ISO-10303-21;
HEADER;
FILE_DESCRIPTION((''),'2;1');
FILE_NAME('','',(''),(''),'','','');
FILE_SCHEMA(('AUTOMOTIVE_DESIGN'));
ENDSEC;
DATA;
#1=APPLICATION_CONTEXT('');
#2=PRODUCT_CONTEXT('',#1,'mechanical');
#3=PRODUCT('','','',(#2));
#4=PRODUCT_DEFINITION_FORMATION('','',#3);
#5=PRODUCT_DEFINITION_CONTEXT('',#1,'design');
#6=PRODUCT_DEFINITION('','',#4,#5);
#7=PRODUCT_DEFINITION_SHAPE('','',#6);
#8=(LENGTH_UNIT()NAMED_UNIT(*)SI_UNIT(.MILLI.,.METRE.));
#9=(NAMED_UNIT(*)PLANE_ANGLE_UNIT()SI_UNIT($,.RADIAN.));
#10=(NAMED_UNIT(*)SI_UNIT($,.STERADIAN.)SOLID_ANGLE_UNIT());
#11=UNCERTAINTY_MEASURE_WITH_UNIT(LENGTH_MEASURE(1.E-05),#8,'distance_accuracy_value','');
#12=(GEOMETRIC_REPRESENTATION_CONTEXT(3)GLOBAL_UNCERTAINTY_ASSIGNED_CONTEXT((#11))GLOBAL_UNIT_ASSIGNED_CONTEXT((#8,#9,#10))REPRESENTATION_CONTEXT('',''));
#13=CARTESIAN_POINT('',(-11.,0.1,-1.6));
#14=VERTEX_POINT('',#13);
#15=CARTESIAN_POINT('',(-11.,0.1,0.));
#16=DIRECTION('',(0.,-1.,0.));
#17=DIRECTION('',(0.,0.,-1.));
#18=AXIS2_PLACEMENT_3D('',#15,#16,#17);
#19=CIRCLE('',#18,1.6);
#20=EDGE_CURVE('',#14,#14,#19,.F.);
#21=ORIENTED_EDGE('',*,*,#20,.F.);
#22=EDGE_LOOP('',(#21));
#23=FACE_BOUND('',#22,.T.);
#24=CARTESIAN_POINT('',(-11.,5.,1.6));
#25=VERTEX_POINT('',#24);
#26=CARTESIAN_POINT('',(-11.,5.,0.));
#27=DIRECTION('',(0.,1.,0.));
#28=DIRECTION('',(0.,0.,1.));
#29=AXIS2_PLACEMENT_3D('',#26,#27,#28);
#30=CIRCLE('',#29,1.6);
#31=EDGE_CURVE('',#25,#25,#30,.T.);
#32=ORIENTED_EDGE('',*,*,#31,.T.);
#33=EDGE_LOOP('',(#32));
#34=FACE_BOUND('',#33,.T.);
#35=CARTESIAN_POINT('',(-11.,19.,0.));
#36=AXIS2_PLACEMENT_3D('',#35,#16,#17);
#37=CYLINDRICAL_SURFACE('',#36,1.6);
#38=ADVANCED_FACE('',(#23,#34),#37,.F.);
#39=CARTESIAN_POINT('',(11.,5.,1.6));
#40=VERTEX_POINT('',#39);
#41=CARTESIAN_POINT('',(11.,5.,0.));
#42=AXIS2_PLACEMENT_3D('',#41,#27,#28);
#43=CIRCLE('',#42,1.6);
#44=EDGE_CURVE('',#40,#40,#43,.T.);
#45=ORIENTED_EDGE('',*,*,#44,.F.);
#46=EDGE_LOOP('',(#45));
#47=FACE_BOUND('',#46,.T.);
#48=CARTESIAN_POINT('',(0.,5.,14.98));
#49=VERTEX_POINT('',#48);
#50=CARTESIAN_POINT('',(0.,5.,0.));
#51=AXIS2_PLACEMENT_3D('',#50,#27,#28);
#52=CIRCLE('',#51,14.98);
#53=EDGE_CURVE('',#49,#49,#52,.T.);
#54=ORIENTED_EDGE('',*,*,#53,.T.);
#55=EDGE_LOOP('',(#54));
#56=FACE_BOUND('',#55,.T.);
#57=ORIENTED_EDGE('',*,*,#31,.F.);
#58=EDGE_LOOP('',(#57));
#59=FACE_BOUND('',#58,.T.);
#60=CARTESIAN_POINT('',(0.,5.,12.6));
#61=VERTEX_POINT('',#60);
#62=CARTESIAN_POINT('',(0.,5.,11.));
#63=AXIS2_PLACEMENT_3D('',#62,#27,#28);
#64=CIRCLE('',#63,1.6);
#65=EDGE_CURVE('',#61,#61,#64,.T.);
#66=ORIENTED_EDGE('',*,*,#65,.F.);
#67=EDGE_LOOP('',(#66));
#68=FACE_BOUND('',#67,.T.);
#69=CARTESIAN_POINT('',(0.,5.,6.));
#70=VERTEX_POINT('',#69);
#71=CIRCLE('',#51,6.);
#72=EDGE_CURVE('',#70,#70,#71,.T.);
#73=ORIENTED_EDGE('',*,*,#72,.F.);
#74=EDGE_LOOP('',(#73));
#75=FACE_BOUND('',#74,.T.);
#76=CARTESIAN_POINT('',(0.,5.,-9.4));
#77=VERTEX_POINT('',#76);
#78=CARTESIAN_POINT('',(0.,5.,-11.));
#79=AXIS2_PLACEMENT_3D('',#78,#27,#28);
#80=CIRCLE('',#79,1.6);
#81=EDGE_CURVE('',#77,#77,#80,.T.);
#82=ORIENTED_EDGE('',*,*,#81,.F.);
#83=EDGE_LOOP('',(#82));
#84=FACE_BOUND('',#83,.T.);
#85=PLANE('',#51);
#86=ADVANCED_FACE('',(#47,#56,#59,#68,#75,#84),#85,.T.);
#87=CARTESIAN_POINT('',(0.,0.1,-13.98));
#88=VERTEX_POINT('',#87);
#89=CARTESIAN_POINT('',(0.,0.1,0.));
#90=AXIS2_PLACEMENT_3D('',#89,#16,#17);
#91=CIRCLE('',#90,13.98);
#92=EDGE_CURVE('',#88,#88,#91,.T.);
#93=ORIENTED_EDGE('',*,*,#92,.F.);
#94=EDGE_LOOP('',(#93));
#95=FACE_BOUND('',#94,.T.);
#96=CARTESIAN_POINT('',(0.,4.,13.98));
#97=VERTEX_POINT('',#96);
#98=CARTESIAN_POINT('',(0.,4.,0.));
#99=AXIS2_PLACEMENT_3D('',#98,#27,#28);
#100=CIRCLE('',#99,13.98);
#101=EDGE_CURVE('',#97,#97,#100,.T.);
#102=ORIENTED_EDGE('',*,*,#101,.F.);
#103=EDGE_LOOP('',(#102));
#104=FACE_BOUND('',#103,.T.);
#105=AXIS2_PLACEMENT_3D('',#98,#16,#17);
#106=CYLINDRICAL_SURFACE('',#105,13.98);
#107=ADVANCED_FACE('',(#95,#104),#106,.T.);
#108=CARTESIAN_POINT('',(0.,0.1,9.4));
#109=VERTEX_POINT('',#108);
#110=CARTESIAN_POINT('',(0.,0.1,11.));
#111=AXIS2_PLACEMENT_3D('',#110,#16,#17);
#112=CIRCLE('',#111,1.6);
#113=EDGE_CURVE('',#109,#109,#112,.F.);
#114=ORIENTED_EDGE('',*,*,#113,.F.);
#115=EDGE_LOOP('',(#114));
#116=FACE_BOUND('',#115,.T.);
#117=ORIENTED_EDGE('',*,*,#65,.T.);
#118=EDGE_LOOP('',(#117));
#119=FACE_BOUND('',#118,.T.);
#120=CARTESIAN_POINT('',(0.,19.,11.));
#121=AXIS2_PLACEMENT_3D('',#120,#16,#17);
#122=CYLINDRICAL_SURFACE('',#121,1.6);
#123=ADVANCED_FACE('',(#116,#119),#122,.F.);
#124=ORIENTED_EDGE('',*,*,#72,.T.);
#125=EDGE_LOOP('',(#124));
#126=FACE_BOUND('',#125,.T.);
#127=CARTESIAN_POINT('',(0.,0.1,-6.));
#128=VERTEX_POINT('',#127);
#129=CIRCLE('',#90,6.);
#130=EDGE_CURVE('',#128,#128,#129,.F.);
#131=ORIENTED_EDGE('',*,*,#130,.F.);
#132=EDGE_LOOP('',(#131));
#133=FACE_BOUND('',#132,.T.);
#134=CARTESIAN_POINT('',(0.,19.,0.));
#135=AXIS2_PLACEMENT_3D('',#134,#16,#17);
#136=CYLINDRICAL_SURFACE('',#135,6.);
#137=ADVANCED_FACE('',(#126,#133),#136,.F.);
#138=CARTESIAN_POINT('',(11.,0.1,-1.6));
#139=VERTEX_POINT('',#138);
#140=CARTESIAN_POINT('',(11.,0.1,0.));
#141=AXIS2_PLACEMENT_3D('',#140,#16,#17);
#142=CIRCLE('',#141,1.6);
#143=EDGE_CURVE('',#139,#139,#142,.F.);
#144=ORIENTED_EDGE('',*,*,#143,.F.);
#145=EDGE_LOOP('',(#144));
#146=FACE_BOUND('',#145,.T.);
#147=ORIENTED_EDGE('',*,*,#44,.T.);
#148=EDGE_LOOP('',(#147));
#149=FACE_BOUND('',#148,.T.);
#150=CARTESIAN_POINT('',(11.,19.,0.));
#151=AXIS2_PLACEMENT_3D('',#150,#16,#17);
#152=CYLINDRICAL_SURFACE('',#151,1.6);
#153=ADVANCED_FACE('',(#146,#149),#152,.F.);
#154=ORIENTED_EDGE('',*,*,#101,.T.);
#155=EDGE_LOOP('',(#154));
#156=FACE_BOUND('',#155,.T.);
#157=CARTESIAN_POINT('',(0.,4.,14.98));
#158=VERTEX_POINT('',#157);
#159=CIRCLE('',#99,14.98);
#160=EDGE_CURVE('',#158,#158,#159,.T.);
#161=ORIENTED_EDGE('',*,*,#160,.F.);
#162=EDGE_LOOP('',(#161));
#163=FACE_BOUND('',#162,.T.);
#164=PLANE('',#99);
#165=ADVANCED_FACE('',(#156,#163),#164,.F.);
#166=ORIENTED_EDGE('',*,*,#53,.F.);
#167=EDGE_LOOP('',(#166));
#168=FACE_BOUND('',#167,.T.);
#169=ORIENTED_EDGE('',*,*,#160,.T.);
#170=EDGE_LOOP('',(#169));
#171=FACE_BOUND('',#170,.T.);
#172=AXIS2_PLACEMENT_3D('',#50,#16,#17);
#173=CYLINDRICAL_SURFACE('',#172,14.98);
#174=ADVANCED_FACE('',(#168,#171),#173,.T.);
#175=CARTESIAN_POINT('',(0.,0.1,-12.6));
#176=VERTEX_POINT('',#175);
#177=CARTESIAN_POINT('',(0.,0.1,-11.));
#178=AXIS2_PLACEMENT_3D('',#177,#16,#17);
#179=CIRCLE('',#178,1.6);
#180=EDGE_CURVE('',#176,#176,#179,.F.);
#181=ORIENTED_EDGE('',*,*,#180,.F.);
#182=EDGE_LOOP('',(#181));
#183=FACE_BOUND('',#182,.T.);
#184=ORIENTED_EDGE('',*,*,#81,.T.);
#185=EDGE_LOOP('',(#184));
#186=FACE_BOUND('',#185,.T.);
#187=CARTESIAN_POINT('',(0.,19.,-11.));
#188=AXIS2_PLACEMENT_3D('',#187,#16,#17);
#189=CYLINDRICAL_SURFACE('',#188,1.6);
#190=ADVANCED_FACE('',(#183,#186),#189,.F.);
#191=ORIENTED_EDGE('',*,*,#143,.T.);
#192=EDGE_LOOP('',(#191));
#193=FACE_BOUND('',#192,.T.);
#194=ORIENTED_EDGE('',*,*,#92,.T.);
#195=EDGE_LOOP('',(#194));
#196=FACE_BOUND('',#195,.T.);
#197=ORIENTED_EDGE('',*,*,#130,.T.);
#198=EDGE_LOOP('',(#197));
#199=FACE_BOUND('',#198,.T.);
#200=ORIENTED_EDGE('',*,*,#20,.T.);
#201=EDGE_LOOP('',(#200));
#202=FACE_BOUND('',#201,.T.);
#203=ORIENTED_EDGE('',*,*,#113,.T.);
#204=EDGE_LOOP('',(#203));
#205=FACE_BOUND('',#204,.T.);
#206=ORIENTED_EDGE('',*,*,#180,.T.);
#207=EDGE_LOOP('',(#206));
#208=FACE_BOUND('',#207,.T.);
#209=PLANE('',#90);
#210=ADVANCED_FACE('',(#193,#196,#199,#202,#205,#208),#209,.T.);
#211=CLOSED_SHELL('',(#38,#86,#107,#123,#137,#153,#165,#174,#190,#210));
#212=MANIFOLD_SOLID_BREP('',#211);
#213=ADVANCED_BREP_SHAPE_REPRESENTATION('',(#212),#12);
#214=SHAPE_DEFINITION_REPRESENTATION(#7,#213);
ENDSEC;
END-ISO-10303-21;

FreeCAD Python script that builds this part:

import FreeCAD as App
import Part
import Sketcher
from FreeCAD import Vector


def add_polygon(sketch, points):
    """Adds a closed chain of lines whose ends are joined by coincident constraints."""
    first, n = sketch.GeometryCount, len(points)
    for a, b in zip(points, points[1:] + points[:1]):
        sketch.addGeometry(Part.LineSegment(App.Vector(*a, 0), App.Vector(*b, 0)), False)
    for i in range(n):
        sketch.addConstraint(Sketcher.Constraint("Coincident", first + i, 2, first + (i + 1) % n, 1))

doc = App.newDocument("Part")
params = doc.addObject("Spreadsheet::Sheet", "Params")
for row, (alias, value) in enumerate([
    ("sketch1_diameter", "27.96 mm"),
    ("pad1_length", "4 mm"),
    ("sketch2_diameter", "29.96 mm"),
    ("pad2_length", "1 mm"),
    ("sketch3_diameter", "15.94 mm"),
    ("pad3_length", "2 mm"),
    ("sketch4_diameter", "12 mm"),
    ("sketch4_diameter2", "3.2 mm"),
    ("pocket1_length", "21 mm"),
    ("sketch5_diameter", "27.96 mm"),
    ("sketch5_diameter2", "15.94 mm"),
    ("pocket2_length", "0.1 mm"),
    ("sketch6_width", "2.1 mm"),
    ("sketch6_height", "15.94 mm"),
], start=1):
    params.set(f"A{row}", alias)
    params.set(f"B{row}", "=" + value)
    params.setAlias(f"B{row}", alias)

body = doc.addObject("PartDesign::Body", "Body")

# Sketch on XZ plane
sketch1 = body.newObject("Sketcher::SketchObject", "Sketch")
sketch1.AttachmentSupport = (doc.getObject("XZ_Plane"), [""])
sketch1.MapMode = "FlatFace"
sketch1.addGeometry(Part.Circle(Vector(0, 0, 0), Vector(0, 0, 1), 14), False)
sketch1.addConstraint(Sketcher.Constraint("Coincident", 0, 3, -1, 1))
sketch1.addConstraint(Sketcher.Constraint("Diameter", 0, 27.96))
sketch1.setExpression("Constraints[1]", "Params.sketch1_diameter")
pad1 = body.newObject("PartDesign::Pad", "Pad")
pad1.Profile = sketch1
pad1.setExpression("Length", "Params.pad1_length")
pad1.Reversed = True

# Sketch on XZ plane
sketch2 = body.newObject("Sketcher::SketchObject", "Sketch001")
sketch2.AttachmentSupport = (doc.getObject("XZ_Plane"), [""])
sketch2.MapMode = "FlatFace"
sketch2.AttachmentOffset = App.Placement(Vector(0, 0, -4), App.Rotation())
sketch2.addGeometry(Part.Circle(Vector(0, 0, 0), Vector(0, 0, 1), 15), False)
sketch2.addConstraint(Sketcher.Constraint("Coincident", 0, 3, -1, 1))
sketch2.addConstraint(Sketcher.Constraint("Diameter", 0, 29.96))
sketch2.setExpression("Constraints[1]", "Params.sketch2_diameter")
pad2 = body.newObject("PartDesign::Pad", "Pad001")
pad2.Profile = sketch2
pad2.setExpression("Length", "Params.pad2_length")
pad2.Reversed = True

# Sketch on XZ plane
sketch3 = body.newObject("Sketcher::SketchObject", "Sketch002")
sketch3.AttachmentSupport = (doc.getObject("XZ_Plane"), [""])
sketch3.MapMode = "FlatFace"
sketch3.addGeometry(Part.Circle(Vector(0, 0, 0), Vector(0, 0, 1), 8), False)
sketch3.addConstraint(Sketcher.Constraint("Coincident", 0, 3, -1, 1))
sketch3.addConstraint(Sketcher.Constraint("Diameter", 0, 15.94))
sketch3.setExpression("Constraints[1]", "Params.sketch3_diameter")
pad3 = body.newObject("PartDesign::Pad", "Pad002")
pad3.Profile = sketch3
pad3.setExpression("Length", "Params.pad3_length")

# Sketch on XZ plane
sketch4 = body.newObject("Sketcher::SketchObject", "Sketch003")
sketch4.AttachmentSupport = (doc.getObject("XZ_Plane"), [""])
sketch4.MapMode = "FlatFace"
sketch4.AttachmentOffset = App.Placement(Vector(0, 0, 2), App.Rotation())
sketch4.addGeometry(Part.Circle(Vector(0, 0, 0), Vector(0, 0, 1), 6), False)
sketch4.addGeometry(Part.Circle(Vector(0, 11, 0), Vector(0, 0, 1), 1.6), False)
sketch4.addGeometry(Part.Circle(Vector(11, 0, 0), Vector(0, 0, 1), 1.6), False)
sketch4.addGeometry(Part.Circle(Vector(0, -11, 0), Vector(0, 0, 1), 1.6), False)
sketch4.addGeometry(Part.Circle(Vector(-11, 0, 0), Vector(0, 0, 1), 1.6), False)
sketch4.addConstraint(Sketcher.Constraint("Coincident", 0, 3, -1, 1))
sketch4.addConstraint(Sketcher.Constraint("Equal", 1, 2))
sketch4.addConstraint(Sketcher.Constraint("Equal", 2, 3))
sketch4.addConstraint(Sketcher.Constraint("Equal", 3, 4))
sketch4.addConstraint(Sketcher.Constraint("Symmetric", 1, 3, 3, 3, -1, 1))
sketch4.addConstraint(Sketcher.Constraint("Symmetric", 2, 3, 4, 3, -1, 1))
sketch4.addConstraint(Sketcher.Constraint("PointOnObject", 1, 3, -2))
sketch4.addConstraint(Sketcher.Constraint("PointOnObject", 2, 3, -1))
sketch4.addConstraint(Sketcher.Constraint("Diameter", 0, 12.0))
sketch4.addConstraint(Sketcher.Constraint("Diameter", 1, 3.2))
sketch4.addConstraint(Sketcher.Constraint("DistanceY", -1, 1, 1, 3, 11.0))
sketch4.addConstraint(Sketcher.Constraint("DistanceX", -1, 1, 2, 3, 11.0))
sketch4.setExpression("Constraints[8]", "Params.sketch4_diameter")
sketch4.setExpression("Constraints[9]", "Params.sketch4_diameter2")
pocket1 = body.newObject("PartDesign::Pocket", "Pocket")
pocket1.Profile = sketch4
pocket1.setExpression("Length", "Params.pocket1_length")

# Sketch on XZ plane
sketch5 = body.newObject("Sketcher::SketchObject", "Sketch004")
sketch5.AttachmentSupport = (doc.getObject("XZ_Plane"), [""])
sketch5.MapMode = "FlatFace"
sketch5.addGeometry(Part.Circle(Vector(0, 0, 0), Vector(0, 0, 1), 14), False)
sketch5.addGeometry(Part.Circle(Vector(0, 0, 0), Vector(0, 0, 1), 8), False)
sketch5.addConstraint(Sketcher.Constraint("Coincident", 0, 3, -1, 1))
sketch5.addConstraint(Sketcher.Constraint("Coincident", 1, 3, -1, 1))
sketch5.addConstraint(Sketcher.Constraint("Diameter", 0, 27.96))
sketch5.addConstraint(Sketcher.Constraint("Diameter", 1, 15.94))
sketch5.setExpression("Constraints[2]", "Params.sketch5_diameter")
sketch5.setExpression("Constraints[3]", "Params.sketch5_diameter2")
pocket2 = body.newObject("PartDesign::Pocket", "Pocket001")
pocket2.Profile = sketch5
pocket2.setExpression("Length", "Params.pocket2_length")

# Sketch on YZ plane
sketch6 = body.newObject("Sketcher::SketchObject", "Sketch005")
sketch6.AttachmentSupport = (doc.getObject("YZ_Plane"), [""])
sketch6.MapMode = "FlatFace"
add_polygon(sketch6, [(0.1, 8), (-2, 8), (-2, -8), (0.1, -8)])  # lines 0-3
sketch6.addConstraint(Sketcher.Constraint("Horizontal", 0))
sketch6.addConstraint(Sketcher.Constraint("Vertical", 1))
sketch6.addConstraint(Sketcher.Constraint("Horizontal", 2))
sketch6.addConstraint(Sketcher.Constraint("Vertical", 3))
sketch6.addConstraint(Sketcher.Constraint("DistanceX", 0, 2, 0, 1, 2.1))
sketch6.addConstraint(Sketcher.Constraint("DistanceX", 0, 2, -1, 1, 2.0))
sketch6.addConstraint(Sketcher.Constraint("DistanceY", 1, 2, 1, 1, 15.94))
sketch6.addConstraint(Sketcher.Constraint("DistanceY", -1, 1, 0, 2, 7.97))
sketch6.setExpression("Constraints[8]", "Params.sketch6_width")
sketch6.setExpression("Constraints[10]", "Params.sketch6_height")
pocket3 = body.newObject("PartDesign::Pocket", "Pocket002")
pocket3.Profile = sketch6
pocket3.Type = "ThroughAll"
pocket3.Midplane = True

doc.recompute()
